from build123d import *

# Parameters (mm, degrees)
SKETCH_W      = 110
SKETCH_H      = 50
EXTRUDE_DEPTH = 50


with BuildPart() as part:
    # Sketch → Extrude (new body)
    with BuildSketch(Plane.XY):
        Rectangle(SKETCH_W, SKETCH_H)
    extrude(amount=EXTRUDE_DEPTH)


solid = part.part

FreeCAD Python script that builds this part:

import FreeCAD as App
import Part
import Sketcher
from FreeCAD import Vector
Q = App.Units.Quantity

doc = App.newDocument("Part")
body = doc.addObject("PartDesign::Body", "Body")

sketch1 = doc.addObject("Sketcher::SketchObject", "Sketch")
body.addObject(sketch1)
sketch1.AttachmentSupport = (doc.XY_Plane, [""])
sketch1.MapMode = "FlatFace"
sketch1.addGeometry([
    Part.LineSegment(Vector(-55, 25, 0), Vector(-55, -25, 0)),
    Part.LineSegment(Vector(-55, -25, 0), Vector(55, -25, 0)),
    Part.LineSegment(Vector(55, -25, 0), Vector(55, 25, 0)),
    Part.LineSegment(Vector(55, 25, 0), Vector(-55, 25, 0)),
], False)
sketch1.addConstraint([
    Sketcher.Constraint("Coincident", 0, 2, 1, 1),
    Sketcher.Constraint("Coincident", 1, 2, 2, 1),
    Sketcher.Constraint("Coincident", 2, 2, 3, 1),
    Sketcher.Constraint("Coincident", 3, 2, 0, 1),
    Sketcher.Constraint("Vertical", 0),
    Sketcher.Constraint("Horizontal", 1),
    Sketcher.Constraint("Vertical", 2),
    Sketcher.Constraint("Horizontal", 3),
    Sketcher.Constraint("Symmetric", 0, 2, 2, 2, -1, 1),
    Sketcher.Constraint("DistanceX", 1, 1, 1, 2, Q("110 mm")),
    Sketcher.Constraint("DistanceY", 0, 2, 0, 1, Q("50 mm")),
])
pad1 = doc.addObject("PartDesign::Pad", "Pad")
body.addObject(pad1)
pad1.Profile = sketch1
pad1.Length = 50

doc.recompute()
